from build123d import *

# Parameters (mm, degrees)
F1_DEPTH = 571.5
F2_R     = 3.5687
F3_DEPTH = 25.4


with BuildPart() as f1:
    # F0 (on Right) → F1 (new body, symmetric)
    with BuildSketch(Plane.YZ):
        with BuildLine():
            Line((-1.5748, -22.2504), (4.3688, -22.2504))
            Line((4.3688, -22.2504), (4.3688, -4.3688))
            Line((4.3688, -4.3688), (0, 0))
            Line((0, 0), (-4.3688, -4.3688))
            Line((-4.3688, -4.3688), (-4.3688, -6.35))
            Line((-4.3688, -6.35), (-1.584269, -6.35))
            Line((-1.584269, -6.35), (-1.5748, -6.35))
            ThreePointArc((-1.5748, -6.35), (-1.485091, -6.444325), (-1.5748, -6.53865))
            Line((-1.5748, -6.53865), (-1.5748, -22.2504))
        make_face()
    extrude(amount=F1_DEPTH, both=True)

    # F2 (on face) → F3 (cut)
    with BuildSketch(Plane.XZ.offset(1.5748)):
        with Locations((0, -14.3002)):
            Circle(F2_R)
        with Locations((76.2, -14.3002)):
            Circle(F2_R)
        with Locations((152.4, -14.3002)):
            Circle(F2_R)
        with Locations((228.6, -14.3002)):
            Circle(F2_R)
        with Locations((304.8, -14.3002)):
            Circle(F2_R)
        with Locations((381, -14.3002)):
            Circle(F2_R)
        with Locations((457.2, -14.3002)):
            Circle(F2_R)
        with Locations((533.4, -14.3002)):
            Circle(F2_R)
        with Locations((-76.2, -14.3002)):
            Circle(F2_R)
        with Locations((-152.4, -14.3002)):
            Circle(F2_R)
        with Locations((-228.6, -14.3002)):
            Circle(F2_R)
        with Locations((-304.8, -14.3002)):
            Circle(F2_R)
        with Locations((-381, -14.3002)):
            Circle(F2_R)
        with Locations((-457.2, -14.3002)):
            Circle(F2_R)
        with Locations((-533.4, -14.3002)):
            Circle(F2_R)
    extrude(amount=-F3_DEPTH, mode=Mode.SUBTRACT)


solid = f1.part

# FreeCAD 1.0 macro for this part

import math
import FreeCAD as App
import Part
import Sketcher
from FreeCAD import Vector
Q = App.Units.Quantity

doc = App.newDocument("Part")
body = doc.addObject("PartDesign::Body", "Body")

# Sketch on YZ plane
sketch1 = body.newObject("Sketcher::SketchObject", "Sketch")
sketch1.AttachmentSupport = (doc.getObject("YZ_Plane"), [""])
sketch1.MapMode = "FlatFace"
sketch1.addGeometry([
    Part.LineSegment(Vector(-1.57, -22.25, 0), Vector(4.37, -22.25, 0)),  # 0
    Part.LineSegment(Vector(4.37, -22.25, 0), Vector(4.37, -4.37, 0)),  # 1
    Part.LineSegment(Vector(4.37, -4.37, 0), Vector(0, 0, 0)),  # 2
    Part.LineSegment(Vector(0, 0, 0), Vector(-4.37, -4.37, 0)),  # 3
    Part.LineSegment(Vector(-4.37, -4.37, 0), Vector(-4.37, -6.35, 0)),  # 4
    Part.LineSegment(Vector(-4.37, -6.35, 0), Vector(-1.57, -6.35, 0)),  # 5
    Part.ArcOfCircle(Part.Circle(Vector(-1.58, -6.44, 0), Vector(0, 0, 1), 0.09), math.radians(-87), math.radians(87)),  # 6
    Part.LineSegment(Vector(-1.57, -6.54, 0), Vector(-1.57, -22.25, 0)),  # 7
], False)
sketch1.addConstraint([
    Sketcher.Constraint("Coincident", 0, 2, 1, 1),
    Sketcher.Constraint("Coincident", 1, 2, 2, 1),
    Sketcher.Constraint("Coincident", 2, 2, 3, 1),
    Sketcher.Constraint("Coincident", 3, 2, 4, 1),
    Sketcher.Constraint("Coincident", 4, 2, 5, 1),
    Sketcher.Constraint("Coincident", 5, 2, 6, 2),
    Sketcher.Constraint("Coincident", 6, 1, 7, 1),
    Sketcher.Constraint("Coincident", 7, 2, 0, 1),
    Sketcher.Constraint("Horizontal", 0),
    Sketcher.Constraint("Vertical", 1),
    Sketcher.Constraint("Vertical", 4),
    Sketcher.Constraint("Horizontal", 5),
    Sketcher.Constraint("Vertical", 7),
    Sketcher.Constraint("Coincident", 2, 2, -1, 1),
    Sketcher.Constraint("Symmetric", 1, 2, 3, 2, -2),
    Sketcher.Constraint("Perpendicular", 2, 3),
    Sketcher.Constraint("Vertical", 5, 2, 6, 1),
    Sketcher.Constraint("DistanceX", 5, 1, 5, 2, Q("0.11 in")),
    Sketcher.Constraint("DistanceX", 0, 1, 0, 2, Q("0.234 in")),
    Sketcher.Constraint("DistanceY", 1, 1, 1, 2, Q("0.704 in")),
    Sketcher.Constraint("DistanceY", 4, 2, 4, 1, Q("0.078 in")),
    Sketcher.Constraint("Radius", 6, 0.094444),
    Sketcher.Constraint("DistanceY", 7, 2, 7, 1, 15.71175),
])
pad1 = body.newObject("PartDesign::Pad", "Pad")
pad1.Profile = sketch1
pad1.Length = Q("45 in")
pad1.Midplane = True

# Sketch on XZ plane
sketch2 = body.newObject("Sketcher::SketchObject", "Sketch001")
sketch2.AttachmentSupport = (doc.getObject("XZ_Plane"), [""])
sketch2.MapMode = "FlatFace"
sketch2.AttachmentOffset = App.Placement(Vector(0, 0, 0.062 * 25.4), App.Rotation())
sketch2.addGeometry([
    Part.Circle(Vector(0, -14.3, 0), Vector(0, 0, 1), 3.6),  # 0
    Part.Circle(Vector(76.2, -14.3, 0), Vector(0, 0, 1), 3.6),  # 1
    Part.Circle(Vector(152.4, -14.3, 0), Vector(0, 0, 1), 3.6),  # 2
    Part.Circle(Vector(228.6, -14.3, 0), Vector(0, 0, 1), 3.6),  # 3
    Part.Circle(Vector(304.8, -14.3, 0), Vector(0, 0, 1), 3.6),  # 4
    Part.Circle(Vector(381, -14.3, 0), Vector(0, 0, 1), 3.6),  # 5
    Part.Circle(Vector(457.2, -14.3, 0), Vector(0, 0, 1), 3.6),  # 6
    Part.Circle(Vector(533.4, -14.3, 0), Vector(0, 0, 1), 3.6),  # 7
    Part.Circle(Vector(-76.2, -14.3, 0), Vector(0, 0, 1), 3.6),  # 8
    Part.Circle(Vector(-152.4, -14.3, 0), Vector(0, 0, 1), 3.6),  # 9
    Part.Circle(Vector(-228.6, -14.3, 0), Vector(0, 0, 1), 3.6),  # 10
    Part.Circle(Vector(-304.8, -14.3, 0), Vector(0, 0, 1), 3.6),  # 11
    Part.Circle(Vector(-381, -14.3, 0), Vector(0, 0, 1), 3.6),  # 12
    Part.Circle(Vector(-457.2, -14.3, 0), Vector(0, 0, 1), 3.6),  # 13
    Part.Circle(Vector(-533.4, -14.3, 0), Vector(0, 0, 1), 3.6),  # 14
], False)
sketch2.addConstraint([
    Sketcher.Constraint("Equal", 0, 1),
    Sketcher.Constraint("Equal", 1, 2),
    Sketcher.Constraint("Equal", 2, 3),
    Sketcher.Constraint("Equal", 3, 4),
    Sketcher.Constraint("Equal", 4, 5),
    Sketcher.Constraint("Equal", 5, 6),
    Sketcher.Constraint("Equal", 6, 7),
    Sketcher.Constraint("Equal", 7, 8),
    Sketcher.Constraint("Equal", 8, 9),
    Sketcher.Constraint("Equal", 9, 10),
    Sketcher.Constraint("Equal", 10, 11),
    Sketcher.Constraint("Equal", 11, 12),
    Sketcher.Constraint("Equal", 12, 13),
    Sketcher.Constraint("Equal", 13, 14),
    Sketcher.Constraint("Symmetric", 1, 3, 8, 3, -2),
    Sketcher.Constraint("Symmetric", 2, 3, 9, 3, -2),
    Sketcher.Constraint("Symmetric", 3, 3, 10, 3, -2),
    Sketcher.Constraint("Symmetric", 4, 3, 11, 3, -2),
    Sketcher.Constraint("Symmetric", 5, 3, 12, 3, -2),
    Sketcher.Constraint("Symmetric", 6, 3, 13, 3, -2),
    Sketcher.Constraint("Symmetric", 7, 3, 14, 3, -2),
    Sketcher.Constraint("PointOnObject", 0, 3, -2),
    Sketcher.Constraint("Horizontal", 0, 3, 1, 3),
    Sketcher.Constraint("Horizontal", 1, 3, 2, 3),
    Sketcher.Constraint("Horizontal", 2, 3, 3, 3),
    Sketcher.Constraint("Horizontal", 3, 3, 4, 3),
    Sketcher.Constraint("Horizontal", 4, 3, 5, 3),
    Sketcher.Constraint("Horizontal", 5, 3, 6, 3),
    Sketcher.Constraint("Horizontal", 6, 3, 7, 3),
    Sketcher.Constraint("Diameter", 0, Q("0.281 in")),
    Sketcher.Constraint("DistanceX", -1, 1, 1, 3, Q("3 in")),
    Sketcher.Constraint("DistanceX", -1, 1, 2, 3, Q("6 in")),
    Sketcher.Constraint("DistanceX", -1, 1, 3, 3, Q("9 in")),
    Sketcher.Constraint("DistanceX", -1, 1, 4, 3, Q("12 in")),
    Sketcher.Constraint("DistanceX", -1, 1, 5, 3, Q("15 in")),
    Sketcher.Constraint("DistanceX", -1, 1, 6, 3, Q("18 in")),
    Sketcher.Constraint("DistanceX", -1, 1, 7, 3, Q("21 in")),
    Sketcher.Constraint("DistanceY", 0, 3, -1, 1, Q("0.563 in")),
])
pocket1 = body.newObject("PartDesign::Pocket", "Pocket")
pocket1.Profile = sketch2
pocket1.Length = Q("1 in")

doc.recompute()
